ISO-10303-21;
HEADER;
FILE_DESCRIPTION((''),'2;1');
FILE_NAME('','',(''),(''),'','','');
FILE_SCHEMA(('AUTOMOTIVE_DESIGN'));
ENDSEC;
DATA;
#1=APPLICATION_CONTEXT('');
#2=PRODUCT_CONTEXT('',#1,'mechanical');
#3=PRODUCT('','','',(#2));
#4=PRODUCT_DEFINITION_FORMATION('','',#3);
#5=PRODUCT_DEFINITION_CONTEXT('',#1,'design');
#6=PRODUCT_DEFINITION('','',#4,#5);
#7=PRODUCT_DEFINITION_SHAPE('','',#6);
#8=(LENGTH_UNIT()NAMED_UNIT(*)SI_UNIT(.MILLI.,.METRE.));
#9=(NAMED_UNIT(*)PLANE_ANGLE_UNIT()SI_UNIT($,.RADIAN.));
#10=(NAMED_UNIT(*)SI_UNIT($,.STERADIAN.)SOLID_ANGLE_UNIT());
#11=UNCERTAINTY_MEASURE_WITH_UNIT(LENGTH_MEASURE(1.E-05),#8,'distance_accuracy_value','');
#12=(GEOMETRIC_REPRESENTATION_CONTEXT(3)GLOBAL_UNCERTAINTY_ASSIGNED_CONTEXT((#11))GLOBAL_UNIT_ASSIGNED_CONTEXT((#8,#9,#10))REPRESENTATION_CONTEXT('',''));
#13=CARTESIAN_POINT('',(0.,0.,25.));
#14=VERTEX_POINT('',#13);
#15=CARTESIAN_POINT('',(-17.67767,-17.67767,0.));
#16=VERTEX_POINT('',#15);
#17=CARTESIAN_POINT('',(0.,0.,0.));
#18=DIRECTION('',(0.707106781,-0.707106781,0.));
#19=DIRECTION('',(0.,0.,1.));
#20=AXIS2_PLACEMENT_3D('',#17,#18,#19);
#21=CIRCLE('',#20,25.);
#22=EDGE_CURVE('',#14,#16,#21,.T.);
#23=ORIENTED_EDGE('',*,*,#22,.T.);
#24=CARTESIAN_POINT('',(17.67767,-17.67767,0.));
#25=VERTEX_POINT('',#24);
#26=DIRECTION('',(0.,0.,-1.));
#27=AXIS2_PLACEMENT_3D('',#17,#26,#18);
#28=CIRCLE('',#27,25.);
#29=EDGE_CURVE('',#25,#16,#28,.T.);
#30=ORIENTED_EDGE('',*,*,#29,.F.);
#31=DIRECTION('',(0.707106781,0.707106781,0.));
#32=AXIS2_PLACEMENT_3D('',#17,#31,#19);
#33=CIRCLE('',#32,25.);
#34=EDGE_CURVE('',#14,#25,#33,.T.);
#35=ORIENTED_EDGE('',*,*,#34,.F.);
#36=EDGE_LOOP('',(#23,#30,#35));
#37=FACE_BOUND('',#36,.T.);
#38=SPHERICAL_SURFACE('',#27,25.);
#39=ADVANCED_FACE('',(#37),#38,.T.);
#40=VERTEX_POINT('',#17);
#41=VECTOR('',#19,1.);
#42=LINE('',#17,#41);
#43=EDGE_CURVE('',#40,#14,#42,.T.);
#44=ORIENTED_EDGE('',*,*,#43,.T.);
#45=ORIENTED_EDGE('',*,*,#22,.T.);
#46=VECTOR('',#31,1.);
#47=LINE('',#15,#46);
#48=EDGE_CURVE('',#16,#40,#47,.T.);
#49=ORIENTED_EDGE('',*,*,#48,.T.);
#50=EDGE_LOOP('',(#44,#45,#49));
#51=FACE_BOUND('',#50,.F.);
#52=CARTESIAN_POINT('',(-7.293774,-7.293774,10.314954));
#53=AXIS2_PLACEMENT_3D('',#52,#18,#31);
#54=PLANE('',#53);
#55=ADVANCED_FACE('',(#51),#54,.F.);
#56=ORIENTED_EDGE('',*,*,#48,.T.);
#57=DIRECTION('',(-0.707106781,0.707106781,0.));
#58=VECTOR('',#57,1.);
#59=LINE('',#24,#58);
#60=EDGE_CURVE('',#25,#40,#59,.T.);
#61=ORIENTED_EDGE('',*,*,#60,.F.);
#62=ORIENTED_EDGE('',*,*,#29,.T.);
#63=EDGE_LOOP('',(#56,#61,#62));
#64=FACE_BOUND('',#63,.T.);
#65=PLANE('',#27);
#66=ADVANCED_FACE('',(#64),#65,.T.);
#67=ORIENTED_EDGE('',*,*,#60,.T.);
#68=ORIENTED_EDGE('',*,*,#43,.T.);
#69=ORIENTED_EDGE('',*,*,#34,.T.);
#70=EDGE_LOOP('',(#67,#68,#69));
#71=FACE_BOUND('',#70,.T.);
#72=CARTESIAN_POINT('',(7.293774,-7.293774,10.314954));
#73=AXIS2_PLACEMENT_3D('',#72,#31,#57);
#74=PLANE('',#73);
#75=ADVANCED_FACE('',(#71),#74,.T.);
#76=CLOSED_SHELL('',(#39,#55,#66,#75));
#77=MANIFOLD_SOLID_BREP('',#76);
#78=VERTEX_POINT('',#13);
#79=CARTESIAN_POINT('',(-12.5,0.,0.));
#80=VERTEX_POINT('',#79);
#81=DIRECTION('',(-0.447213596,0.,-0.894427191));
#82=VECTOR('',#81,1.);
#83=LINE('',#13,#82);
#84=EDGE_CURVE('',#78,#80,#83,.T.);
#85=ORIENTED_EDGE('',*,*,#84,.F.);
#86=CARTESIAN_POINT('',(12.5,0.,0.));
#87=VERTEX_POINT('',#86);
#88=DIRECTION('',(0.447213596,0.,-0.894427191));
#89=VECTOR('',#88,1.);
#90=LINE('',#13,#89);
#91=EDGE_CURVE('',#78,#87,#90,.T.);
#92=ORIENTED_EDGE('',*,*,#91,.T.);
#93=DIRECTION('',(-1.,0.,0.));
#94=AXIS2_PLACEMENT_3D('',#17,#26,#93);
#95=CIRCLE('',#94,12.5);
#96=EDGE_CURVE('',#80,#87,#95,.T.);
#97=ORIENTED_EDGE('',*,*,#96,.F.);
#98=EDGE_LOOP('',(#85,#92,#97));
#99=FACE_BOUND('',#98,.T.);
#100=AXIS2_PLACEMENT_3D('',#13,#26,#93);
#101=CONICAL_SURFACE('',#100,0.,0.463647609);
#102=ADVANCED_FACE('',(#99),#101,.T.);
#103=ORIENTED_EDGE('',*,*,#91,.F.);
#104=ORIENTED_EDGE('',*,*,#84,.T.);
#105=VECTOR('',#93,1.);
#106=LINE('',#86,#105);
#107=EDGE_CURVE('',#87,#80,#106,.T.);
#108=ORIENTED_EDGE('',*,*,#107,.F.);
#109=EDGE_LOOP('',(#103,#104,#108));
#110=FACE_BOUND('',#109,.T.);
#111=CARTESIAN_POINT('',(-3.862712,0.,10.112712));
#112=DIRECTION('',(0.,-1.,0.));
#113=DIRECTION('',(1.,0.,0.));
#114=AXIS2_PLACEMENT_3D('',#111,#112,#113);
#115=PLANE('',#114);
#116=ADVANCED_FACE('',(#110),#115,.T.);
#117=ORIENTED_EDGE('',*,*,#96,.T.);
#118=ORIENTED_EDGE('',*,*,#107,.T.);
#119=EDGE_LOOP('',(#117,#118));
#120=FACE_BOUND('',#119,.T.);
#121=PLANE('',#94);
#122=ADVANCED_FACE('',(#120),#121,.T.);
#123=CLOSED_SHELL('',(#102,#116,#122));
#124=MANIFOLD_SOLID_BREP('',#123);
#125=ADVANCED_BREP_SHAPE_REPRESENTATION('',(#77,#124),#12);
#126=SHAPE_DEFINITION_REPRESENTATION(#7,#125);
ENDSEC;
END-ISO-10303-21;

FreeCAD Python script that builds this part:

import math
import FreeCAD as App
import Part
import Sketcher
Q = App.Units.Quantity


def add_polygon(sketch, points):
    """Adds a closed chain of lines whose ends are joined by coincident constraints."""
    first, n = sketch.GeometryCount, len(points)
    for a, b in zip(points, points[1:] + points[:1]):
        sketch.addGeometry(Part.LineSegment(App.Vector(*a, 0), App.Vector(*b, 0)), False)
    for i in range(n):
        sketch.addConstraint(Sketcher.Constraint("Coincident", first + i, 2, first + (i + 1) % n, 1))

doc = App.newDocument("Part")
params = doc.addObject("Spreadsheet::Sheet", "Params")
for row, (alias, value) in enumerate([
    ("sketch1_height", "25 mm"),
    ("sketch1_width", "12.5 mm"),
    ("revolution_angle", "180 deg"),
    ("sketch2_radius", "25 mm"),
    ("revolution2_angle", "90 deg"),
], start=1):
    params.set(f"A{row}", alias)
    params.set(f"B{row}", "=" + value)
    params.setAlias(f"B{row}", alias)

body = doc.addObject("PartDesign::Body", "Body")

# Sketch on XZ plane
sketch1 = body.newObject("Sketcher::SketchObject", "Sketch")
sketch1.AttachmentSupport = (doc.getObject("XZ_Plane"), [""])
sketch1.MapMode = "FlatFace"
add_polygon(sketch1, [(-12, 0), (0, 0), (0, 25)])  # lines 0-2
sketch1.addConstraint(Sketcher.Constraint("Horizontal", 0))
sketch1.addConstraint(Sketcher.Constraint("Vertical", 1))
sketch1.addConstraint(Sketcher.Constraint("Coincident", 0, 2, -1, 1))
sketch1.addConstraint(Sketcher.Constraint("DistanceY", 1, 1, 1, 2, Q("25 mm")))
sketch1.addConstraint(Sketcher.Constraint("DistanceX", 0, 1, 0, 2, Q("12.5 mm")))
sketch1.setExpression("Constraints[6]", "Params.sketch1_height")
sketch1.setExpression("Constraints[7]", "Params.sketch1_width")
revolution = body.newObject("PartDesign::Revolution", "Revolution")
revolution.Profile = sketch1
revolution.ReferenceAxis = (sketch1, ["V_Axis"])
revolution.setExpression("Angle", "Params.revolution_angle")
revolution.Reversed = True
body2 = doc.addObject("PartDesign::Body", "Body001")

# Sketch on an angled plane
sketch2 = body2.newObject("Sketcher::SketchObject", "Sketch001")
sketch2.Placement = App.Placement(App.Vector(0, 0, 0), App.Rotation(App.Vector(-0.707106781, 0.707106781, 0), App.Vector(0, 0, 0.999999999), App.Vector(0.707106781, 0.707106781, 0), "ZXY"))
sketch2.addGeometry(Part.LineSegment(App.Vector(0, 0, 0), App.Vector(0, 25, 0)), False)
sketch2.addGeometry(Part.ArcOfCircle(Part.Circle(App.Vector(0, 0, 0), App.Vector(0, 0, 1), 25), math.radians(90), math.radians(180)), False)
sketch2.addGeometry(Part.LineSegment(App.Vector(-25, 0, 0), App.Vector(0, 0, 0)), False)
sketch2.addConstraint(Sketcher.Constraint("Coincident", 0, 2, 1, 1))
sketch2.addConstraint(Sketcher.Constraint("Coincident", 1, 2, 2, 1))
sketch2.addConstraint(Sketcher.Constraint("Coincident", 2, 2, 0, 1))
sketch2.addConstraint(Sketcher.Constraint("Vertical", 0))
sketch2.addConstraint(Sketcher.Constraint("Horizontal", 2))
sketch2.addConstraint(Sketcher.Constraint("Coincident", 1, 3, -1, 1))
sketch2.addConstraint(Sketcher.Constraint("Coincident", 2, 2, -1, 1))
sketch2.addConstraint(Sketcher.Constraint("Radius", 1, Q("25 mm")))
sketch2.setExpression("Constraints[7]", "Params.sketch2_radius")
revolution2 = body2.newObject("PartDesign::Revolution", "Revolution001")
revolution2.Profile = sketch2
revolution2.ReferenceAxis = (sketch2, ["V_Axis"])
revolution2.setExpression("Angle", "Params.revolution2_angle")
revolution2.Reversed = True

doc.recompute()
